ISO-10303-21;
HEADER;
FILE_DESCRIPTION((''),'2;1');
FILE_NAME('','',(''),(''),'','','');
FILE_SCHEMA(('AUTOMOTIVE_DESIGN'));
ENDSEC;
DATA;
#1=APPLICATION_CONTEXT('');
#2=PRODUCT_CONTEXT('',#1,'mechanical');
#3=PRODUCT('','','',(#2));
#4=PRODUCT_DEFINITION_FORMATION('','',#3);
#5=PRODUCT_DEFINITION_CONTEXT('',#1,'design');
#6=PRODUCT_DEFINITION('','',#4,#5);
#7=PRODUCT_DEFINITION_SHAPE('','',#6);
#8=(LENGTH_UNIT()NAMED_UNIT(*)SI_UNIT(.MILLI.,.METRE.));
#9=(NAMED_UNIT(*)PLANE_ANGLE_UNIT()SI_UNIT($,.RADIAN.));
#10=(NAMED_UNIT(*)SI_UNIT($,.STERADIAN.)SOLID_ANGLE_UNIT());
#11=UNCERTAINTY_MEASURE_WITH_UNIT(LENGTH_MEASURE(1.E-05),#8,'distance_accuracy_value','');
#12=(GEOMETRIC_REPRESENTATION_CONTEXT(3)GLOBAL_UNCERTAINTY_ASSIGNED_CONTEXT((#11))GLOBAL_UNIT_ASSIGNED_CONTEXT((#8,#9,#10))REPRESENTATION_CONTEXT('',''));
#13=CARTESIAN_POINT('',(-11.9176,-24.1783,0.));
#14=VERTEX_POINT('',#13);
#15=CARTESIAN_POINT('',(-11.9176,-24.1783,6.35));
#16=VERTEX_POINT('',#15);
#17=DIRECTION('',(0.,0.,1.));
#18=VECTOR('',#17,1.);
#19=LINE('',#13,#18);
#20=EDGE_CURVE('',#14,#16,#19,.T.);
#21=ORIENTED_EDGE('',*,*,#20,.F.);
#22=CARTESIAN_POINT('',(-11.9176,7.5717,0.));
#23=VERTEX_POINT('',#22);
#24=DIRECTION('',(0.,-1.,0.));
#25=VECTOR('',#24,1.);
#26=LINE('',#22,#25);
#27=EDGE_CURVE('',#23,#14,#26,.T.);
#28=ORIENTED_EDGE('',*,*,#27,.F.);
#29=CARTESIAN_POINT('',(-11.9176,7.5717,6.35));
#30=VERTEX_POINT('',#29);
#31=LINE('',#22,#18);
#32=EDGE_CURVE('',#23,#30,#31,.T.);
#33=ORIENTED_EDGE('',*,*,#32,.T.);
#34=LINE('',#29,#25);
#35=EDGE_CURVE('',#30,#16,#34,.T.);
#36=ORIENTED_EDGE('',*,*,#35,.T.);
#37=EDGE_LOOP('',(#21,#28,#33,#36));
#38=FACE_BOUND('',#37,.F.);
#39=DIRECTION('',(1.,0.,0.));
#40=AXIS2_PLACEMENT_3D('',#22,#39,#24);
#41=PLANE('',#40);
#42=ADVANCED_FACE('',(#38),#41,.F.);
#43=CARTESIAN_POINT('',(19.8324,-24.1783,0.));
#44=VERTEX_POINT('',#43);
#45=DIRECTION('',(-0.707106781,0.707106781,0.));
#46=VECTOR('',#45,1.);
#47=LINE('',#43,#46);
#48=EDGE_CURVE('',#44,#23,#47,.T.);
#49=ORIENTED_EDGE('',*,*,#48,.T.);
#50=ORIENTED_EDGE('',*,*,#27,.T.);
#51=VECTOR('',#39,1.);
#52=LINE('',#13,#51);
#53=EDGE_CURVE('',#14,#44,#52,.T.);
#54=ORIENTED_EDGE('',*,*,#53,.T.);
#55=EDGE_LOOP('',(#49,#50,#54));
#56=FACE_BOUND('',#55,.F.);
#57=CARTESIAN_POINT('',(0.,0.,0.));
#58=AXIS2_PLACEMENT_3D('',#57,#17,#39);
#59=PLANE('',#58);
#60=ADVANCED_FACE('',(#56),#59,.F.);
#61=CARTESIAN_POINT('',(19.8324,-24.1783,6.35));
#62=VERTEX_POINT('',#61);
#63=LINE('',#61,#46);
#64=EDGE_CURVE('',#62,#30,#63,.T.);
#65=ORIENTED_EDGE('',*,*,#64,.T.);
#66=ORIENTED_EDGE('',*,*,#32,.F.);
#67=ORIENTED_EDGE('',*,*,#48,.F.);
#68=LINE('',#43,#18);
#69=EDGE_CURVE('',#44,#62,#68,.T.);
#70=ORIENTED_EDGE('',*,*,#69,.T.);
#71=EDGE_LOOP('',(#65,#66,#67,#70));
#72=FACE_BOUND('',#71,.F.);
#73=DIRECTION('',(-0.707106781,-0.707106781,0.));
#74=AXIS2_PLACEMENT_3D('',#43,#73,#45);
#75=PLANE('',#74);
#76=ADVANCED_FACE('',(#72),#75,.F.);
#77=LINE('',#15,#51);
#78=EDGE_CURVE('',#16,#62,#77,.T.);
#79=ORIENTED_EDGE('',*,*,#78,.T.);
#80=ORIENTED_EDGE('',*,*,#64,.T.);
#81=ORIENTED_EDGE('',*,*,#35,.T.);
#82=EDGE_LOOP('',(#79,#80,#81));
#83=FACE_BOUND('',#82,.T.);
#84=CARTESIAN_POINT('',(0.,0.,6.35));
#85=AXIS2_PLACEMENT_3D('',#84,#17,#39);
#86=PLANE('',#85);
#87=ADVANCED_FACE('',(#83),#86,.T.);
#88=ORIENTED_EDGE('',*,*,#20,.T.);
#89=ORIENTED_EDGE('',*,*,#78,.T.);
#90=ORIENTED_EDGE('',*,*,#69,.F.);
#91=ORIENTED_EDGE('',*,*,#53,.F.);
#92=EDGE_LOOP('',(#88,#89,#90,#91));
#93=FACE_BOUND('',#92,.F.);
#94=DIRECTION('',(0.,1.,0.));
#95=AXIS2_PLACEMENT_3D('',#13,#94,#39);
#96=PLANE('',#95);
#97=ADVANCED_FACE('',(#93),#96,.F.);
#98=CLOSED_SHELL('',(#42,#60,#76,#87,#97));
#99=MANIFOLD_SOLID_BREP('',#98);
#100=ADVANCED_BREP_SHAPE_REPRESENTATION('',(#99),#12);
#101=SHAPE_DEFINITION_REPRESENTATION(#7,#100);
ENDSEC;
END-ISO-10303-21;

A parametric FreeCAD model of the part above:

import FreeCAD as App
import Part
import Sketcher

V = App.Vector
Q = App.Units.Quantity

doc = App.newDocument("Part")
body = doc.addObject("PartDesign::Body", "Body")

# Sketch on XY plane
sketch1 = doc.addObject("Sketcher::SketchObject", "Sketch")
body.addObject(sketch1)
sketch1.AttachmentSupport = (doc.XY_Plane, [""])
sketch1.MapMode = "FlatFace"
sketch1.addGeometry([
    Part.LineSegment(V(20, -24, 0), V(-12, 8, 0)),
    Part.LineSegment(V(-12, 8, 0), V(-12, -24, 0)),
    Part.LineSegment(V(-12, -24, 0), V(20, -24, 0)),
], False)
sketch1.addConstraint([
    Sketcher.Constraint("Coincident", 0, 2, 1, 1),
    Sketcher.Constraint("Coincident", 1, 2, 2, 1),
    Sketcher.Constraint("Coincident", 2, 2, 0, 1),
    Sketcher.Constraint("Vertical", 1),
    Sketcher.Constraint("Horizontal", 2),
    Sketcher.Constraint("Equal", 2, 1),
    Sketcher.Constraint("DistanceX", 2, 1, 2, 2, Q("1.25 in")),
    Sketcher.Constraint("DistanceX", 0, 2, -1, 1, Q("0.4692 in")),
    Sketcher.Constraint("DistanceY", -1, 1, 0, 2, Q("0.2981 in")),
])
pad1 = doc.addObject("PartDesign::Pad", "Pad")
body.addObject(pad1)
pad1.Profile = sketch1
pad1.Length = Q("0.25 in")

doc.recompute()
